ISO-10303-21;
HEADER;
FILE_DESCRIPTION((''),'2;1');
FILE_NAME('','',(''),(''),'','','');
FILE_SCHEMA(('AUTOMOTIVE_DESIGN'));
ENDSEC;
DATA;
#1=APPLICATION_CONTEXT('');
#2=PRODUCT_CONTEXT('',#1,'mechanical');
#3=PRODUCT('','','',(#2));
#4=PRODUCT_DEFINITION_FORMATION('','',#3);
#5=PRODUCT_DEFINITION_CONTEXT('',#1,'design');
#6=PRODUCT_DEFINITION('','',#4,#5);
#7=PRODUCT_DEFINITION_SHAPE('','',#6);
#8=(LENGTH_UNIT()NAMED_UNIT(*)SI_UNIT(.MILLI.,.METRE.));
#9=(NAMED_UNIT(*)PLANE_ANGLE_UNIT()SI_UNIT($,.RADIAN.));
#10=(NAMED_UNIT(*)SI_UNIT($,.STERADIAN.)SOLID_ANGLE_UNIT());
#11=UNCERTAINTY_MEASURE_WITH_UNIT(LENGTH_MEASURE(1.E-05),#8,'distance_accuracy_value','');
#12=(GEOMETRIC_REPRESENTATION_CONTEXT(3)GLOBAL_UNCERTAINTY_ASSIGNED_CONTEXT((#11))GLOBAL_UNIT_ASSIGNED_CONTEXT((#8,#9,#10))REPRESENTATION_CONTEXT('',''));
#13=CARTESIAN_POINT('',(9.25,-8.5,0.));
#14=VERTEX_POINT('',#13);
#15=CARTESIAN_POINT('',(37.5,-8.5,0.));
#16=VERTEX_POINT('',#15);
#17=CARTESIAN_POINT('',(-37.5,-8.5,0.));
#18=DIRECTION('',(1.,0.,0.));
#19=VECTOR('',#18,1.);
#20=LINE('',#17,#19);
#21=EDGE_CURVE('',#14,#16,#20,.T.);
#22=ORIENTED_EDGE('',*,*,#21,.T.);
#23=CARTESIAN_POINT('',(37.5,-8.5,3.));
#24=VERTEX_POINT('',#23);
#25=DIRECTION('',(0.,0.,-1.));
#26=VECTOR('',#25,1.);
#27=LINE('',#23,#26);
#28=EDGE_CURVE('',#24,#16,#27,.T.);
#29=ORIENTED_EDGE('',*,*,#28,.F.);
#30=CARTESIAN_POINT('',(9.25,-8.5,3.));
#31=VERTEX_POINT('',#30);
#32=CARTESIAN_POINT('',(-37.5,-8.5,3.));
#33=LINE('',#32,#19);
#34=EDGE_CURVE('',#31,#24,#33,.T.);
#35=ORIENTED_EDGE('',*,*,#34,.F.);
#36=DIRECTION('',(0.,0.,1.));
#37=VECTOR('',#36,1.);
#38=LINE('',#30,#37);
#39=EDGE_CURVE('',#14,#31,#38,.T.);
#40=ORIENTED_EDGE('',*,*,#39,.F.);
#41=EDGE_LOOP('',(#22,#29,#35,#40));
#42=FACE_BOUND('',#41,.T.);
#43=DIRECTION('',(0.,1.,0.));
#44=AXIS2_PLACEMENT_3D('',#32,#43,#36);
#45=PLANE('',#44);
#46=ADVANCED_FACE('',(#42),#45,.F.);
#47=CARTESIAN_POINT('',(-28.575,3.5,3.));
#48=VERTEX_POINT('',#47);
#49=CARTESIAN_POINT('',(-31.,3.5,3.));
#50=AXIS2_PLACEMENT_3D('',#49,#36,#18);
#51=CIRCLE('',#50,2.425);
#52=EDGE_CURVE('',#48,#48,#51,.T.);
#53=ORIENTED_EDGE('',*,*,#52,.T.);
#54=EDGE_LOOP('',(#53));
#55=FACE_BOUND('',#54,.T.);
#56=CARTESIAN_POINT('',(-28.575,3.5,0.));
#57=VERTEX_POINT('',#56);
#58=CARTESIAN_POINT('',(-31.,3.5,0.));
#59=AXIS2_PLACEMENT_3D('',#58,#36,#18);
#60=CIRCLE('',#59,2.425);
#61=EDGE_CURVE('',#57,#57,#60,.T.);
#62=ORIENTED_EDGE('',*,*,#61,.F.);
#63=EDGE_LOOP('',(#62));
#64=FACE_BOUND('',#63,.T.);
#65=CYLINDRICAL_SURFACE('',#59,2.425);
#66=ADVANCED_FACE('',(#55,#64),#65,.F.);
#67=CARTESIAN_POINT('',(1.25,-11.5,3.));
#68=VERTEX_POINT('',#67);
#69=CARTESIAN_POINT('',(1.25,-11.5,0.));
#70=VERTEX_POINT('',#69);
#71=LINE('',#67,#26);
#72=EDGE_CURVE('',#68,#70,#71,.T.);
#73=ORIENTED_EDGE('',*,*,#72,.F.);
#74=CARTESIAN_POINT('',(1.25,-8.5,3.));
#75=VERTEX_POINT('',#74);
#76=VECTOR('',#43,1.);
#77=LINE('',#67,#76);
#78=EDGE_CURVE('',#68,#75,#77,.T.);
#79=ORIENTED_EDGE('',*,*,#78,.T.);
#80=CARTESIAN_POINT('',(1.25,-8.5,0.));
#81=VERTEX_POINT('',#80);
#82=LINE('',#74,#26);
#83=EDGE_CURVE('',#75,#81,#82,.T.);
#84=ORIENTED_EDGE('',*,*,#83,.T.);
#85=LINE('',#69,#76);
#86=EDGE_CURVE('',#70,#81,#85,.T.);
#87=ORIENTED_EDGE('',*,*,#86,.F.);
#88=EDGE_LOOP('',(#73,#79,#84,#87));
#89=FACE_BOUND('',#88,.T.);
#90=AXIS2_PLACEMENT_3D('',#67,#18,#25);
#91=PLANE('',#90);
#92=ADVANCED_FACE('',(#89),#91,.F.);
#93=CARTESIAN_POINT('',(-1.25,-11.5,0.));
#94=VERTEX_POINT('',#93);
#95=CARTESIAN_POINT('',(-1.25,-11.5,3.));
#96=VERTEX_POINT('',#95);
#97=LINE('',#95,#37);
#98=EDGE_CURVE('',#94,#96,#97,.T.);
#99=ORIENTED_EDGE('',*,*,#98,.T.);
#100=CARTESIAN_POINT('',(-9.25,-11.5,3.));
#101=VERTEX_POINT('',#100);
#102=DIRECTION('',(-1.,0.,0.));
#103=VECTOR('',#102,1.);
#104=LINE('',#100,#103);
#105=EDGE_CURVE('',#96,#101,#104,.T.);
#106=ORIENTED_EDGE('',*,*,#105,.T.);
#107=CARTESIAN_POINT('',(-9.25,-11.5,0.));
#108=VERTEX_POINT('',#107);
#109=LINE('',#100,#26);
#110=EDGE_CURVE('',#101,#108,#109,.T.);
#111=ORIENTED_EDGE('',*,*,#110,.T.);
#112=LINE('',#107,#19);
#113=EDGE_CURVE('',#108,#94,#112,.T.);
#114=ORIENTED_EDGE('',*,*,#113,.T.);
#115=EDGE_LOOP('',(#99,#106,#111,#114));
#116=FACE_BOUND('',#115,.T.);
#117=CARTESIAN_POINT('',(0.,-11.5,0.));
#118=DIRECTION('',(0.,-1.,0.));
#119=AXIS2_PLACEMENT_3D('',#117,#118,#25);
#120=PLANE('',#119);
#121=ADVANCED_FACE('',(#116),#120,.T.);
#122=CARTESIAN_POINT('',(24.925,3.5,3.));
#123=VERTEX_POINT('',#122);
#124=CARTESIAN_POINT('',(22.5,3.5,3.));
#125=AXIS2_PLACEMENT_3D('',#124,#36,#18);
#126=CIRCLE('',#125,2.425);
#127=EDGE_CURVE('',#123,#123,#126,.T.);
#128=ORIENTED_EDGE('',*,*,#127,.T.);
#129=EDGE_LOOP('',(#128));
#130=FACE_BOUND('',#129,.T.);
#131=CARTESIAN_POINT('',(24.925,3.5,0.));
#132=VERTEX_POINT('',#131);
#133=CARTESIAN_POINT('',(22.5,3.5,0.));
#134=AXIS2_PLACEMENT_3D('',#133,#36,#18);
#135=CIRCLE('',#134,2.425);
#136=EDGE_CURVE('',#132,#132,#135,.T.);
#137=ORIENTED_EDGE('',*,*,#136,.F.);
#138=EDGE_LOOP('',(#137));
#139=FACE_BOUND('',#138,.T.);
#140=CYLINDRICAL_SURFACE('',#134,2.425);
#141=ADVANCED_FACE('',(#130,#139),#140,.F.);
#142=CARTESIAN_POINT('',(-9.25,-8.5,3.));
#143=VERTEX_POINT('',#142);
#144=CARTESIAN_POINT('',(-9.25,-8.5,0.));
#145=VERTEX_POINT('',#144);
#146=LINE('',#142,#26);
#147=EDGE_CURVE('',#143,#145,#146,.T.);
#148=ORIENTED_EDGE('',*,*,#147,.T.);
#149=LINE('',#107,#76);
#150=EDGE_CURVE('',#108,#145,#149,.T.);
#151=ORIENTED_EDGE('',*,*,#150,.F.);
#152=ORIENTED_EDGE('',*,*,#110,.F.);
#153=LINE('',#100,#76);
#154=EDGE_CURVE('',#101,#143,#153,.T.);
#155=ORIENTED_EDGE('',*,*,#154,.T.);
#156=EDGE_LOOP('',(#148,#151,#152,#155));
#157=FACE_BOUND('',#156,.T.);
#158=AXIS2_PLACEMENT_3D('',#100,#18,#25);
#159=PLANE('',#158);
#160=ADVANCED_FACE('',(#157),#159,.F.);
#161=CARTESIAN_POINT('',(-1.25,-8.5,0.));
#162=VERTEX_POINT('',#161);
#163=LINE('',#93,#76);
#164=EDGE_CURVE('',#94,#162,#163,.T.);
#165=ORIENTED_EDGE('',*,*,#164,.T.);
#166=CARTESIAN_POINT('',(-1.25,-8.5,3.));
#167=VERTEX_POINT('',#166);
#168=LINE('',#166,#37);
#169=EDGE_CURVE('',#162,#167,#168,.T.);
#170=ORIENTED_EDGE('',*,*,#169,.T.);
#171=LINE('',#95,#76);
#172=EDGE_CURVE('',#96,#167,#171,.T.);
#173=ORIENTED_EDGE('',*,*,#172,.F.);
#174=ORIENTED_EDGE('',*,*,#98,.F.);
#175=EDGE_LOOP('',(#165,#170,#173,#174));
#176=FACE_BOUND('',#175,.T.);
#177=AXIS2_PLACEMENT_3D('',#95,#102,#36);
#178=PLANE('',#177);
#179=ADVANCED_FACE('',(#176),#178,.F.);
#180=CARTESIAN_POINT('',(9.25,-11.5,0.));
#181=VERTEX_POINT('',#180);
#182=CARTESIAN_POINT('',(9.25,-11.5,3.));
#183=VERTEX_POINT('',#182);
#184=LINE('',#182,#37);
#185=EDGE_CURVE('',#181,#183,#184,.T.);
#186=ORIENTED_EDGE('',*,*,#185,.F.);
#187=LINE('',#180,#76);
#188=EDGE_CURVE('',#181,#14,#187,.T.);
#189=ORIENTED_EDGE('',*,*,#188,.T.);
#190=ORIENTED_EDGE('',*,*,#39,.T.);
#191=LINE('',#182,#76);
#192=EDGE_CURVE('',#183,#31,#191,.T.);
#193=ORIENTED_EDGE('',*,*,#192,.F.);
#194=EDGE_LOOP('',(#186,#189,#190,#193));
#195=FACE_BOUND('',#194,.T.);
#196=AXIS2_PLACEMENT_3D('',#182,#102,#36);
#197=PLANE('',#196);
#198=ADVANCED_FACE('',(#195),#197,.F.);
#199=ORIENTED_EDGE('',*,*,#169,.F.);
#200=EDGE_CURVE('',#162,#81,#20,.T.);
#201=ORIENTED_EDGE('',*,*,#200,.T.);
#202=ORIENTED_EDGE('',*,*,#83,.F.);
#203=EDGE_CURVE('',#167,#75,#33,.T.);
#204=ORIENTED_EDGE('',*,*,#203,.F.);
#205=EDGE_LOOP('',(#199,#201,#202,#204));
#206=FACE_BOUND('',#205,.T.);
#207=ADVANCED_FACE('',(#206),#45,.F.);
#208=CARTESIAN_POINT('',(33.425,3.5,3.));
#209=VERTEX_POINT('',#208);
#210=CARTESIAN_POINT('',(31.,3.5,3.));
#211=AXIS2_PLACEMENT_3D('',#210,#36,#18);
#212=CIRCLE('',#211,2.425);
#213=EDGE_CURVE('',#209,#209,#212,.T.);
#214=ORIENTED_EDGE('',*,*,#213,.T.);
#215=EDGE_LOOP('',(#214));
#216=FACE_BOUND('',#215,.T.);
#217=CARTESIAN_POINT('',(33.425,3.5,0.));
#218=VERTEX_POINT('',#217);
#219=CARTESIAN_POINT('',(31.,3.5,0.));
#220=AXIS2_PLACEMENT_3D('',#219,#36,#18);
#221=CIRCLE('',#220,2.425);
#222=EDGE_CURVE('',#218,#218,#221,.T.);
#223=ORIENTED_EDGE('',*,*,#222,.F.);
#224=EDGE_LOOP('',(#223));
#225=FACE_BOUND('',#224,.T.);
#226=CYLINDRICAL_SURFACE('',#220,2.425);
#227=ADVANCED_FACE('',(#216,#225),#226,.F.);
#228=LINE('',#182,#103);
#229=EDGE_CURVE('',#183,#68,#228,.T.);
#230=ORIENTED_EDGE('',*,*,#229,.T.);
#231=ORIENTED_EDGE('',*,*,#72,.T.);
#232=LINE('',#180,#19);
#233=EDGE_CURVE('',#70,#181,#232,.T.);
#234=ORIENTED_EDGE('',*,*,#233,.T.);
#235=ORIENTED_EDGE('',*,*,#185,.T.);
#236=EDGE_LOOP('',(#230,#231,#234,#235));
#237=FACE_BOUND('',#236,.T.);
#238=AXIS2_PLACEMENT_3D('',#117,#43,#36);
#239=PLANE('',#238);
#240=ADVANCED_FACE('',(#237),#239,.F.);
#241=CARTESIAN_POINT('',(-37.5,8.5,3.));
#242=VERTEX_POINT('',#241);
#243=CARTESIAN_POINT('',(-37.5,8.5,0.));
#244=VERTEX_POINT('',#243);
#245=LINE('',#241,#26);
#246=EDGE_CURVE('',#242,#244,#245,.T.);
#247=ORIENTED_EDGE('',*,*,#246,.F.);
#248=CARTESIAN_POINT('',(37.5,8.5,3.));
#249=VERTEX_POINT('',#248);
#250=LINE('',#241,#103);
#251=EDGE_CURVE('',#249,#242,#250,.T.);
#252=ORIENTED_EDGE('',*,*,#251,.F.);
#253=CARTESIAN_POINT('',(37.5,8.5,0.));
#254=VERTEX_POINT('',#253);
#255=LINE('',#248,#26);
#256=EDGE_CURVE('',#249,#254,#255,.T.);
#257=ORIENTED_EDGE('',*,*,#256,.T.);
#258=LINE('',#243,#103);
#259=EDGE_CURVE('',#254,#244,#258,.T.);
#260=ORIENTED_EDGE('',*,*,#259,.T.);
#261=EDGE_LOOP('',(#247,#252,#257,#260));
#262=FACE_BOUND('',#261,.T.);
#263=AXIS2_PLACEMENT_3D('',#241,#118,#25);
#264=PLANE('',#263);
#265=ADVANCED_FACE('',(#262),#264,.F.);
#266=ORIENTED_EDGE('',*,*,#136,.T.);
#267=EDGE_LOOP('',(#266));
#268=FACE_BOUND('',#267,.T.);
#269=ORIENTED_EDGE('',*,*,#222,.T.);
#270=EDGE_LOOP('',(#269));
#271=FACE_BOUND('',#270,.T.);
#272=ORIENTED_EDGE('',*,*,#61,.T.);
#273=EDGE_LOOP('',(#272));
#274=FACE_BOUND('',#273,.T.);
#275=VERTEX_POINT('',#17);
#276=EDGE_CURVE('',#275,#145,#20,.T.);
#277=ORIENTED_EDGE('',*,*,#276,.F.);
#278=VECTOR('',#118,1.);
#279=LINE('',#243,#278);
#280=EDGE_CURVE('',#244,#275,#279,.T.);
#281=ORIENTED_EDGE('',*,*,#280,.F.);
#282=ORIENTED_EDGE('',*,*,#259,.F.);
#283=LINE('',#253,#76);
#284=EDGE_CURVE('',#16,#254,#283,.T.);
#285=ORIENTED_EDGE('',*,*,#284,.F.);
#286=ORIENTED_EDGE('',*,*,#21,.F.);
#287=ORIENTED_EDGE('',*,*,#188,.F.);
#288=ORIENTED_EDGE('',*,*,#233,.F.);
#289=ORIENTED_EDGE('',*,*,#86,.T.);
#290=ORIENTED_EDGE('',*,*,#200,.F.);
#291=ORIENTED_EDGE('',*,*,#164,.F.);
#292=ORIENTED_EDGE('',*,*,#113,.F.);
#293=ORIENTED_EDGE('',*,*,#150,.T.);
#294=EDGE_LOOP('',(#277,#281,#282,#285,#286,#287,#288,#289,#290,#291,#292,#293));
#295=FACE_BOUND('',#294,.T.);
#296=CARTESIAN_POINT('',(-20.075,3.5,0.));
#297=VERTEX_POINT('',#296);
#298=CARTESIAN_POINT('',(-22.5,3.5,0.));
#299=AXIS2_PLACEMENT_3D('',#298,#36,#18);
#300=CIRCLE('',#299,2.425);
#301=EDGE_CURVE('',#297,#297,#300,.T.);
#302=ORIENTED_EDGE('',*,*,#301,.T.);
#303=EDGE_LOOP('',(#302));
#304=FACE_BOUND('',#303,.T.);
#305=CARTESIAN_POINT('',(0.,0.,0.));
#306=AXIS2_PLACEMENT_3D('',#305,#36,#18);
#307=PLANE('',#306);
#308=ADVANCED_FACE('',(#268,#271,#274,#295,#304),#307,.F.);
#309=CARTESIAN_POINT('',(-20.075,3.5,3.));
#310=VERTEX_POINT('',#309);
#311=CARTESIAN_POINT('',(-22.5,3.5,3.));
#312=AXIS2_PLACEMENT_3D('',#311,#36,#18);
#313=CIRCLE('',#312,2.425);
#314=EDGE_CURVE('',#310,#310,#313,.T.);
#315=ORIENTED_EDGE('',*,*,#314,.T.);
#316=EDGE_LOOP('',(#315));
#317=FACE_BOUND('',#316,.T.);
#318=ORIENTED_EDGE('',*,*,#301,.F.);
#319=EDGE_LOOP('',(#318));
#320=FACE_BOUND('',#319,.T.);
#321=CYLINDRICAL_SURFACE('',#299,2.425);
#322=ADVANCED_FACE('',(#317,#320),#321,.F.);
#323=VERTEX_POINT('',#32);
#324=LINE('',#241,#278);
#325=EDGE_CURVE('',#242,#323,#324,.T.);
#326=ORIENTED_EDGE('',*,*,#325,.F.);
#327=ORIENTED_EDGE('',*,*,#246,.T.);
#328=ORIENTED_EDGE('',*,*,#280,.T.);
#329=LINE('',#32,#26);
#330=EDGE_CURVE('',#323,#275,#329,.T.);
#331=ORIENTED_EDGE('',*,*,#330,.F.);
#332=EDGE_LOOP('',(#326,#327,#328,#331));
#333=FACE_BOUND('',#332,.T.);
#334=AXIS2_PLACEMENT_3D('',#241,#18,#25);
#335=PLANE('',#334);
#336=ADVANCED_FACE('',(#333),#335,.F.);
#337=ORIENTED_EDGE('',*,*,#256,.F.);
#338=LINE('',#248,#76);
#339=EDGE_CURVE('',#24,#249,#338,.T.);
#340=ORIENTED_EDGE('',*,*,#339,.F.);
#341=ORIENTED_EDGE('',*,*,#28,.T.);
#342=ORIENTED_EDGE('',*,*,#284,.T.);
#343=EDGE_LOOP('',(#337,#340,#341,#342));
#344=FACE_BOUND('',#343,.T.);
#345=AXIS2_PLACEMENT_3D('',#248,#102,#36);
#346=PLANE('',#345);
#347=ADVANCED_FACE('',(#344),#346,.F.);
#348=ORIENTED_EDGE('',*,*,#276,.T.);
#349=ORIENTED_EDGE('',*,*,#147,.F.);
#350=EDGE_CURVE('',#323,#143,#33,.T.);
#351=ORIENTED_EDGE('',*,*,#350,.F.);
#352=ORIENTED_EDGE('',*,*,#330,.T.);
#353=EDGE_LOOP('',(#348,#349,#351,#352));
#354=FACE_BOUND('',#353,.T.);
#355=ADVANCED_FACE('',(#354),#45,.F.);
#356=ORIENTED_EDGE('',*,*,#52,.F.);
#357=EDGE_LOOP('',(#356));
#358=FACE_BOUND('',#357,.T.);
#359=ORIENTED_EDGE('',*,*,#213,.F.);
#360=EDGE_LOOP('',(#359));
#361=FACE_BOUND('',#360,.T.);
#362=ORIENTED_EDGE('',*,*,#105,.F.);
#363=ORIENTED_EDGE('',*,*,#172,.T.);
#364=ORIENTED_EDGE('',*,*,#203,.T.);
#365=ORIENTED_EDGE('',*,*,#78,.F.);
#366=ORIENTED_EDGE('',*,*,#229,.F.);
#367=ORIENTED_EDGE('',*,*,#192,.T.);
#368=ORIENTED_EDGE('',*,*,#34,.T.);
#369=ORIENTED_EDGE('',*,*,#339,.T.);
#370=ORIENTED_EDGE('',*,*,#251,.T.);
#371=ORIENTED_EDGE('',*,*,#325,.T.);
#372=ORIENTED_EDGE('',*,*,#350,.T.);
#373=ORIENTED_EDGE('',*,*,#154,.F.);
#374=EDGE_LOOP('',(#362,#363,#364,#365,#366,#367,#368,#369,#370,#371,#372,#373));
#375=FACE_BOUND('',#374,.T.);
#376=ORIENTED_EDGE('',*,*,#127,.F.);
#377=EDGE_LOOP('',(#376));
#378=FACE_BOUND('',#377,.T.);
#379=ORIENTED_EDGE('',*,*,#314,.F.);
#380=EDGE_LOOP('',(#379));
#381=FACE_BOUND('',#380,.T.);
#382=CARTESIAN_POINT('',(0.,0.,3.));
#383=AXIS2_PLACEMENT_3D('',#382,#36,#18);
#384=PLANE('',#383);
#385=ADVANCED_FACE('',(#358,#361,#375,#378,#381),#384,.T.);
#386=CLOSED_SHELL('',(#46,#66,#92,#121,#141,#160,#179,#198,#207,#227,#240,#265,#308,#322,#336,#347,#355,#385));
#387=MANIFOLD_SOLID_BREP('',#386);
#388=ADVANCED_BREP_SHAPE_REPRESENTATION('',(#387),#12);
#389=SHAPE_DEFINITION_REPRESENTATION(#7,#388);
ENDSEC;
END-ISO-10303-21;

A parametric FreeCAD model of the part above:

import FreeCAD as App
import Part
import Sketcher
from FreeCAD import Vector


def add_polygon(sketch, points):
    """Adds a closed chain of lines whose ends are joined by coincident constraints."""
    first, n = sketch.GeometryCount, len(points)
    for a, b in zip(points, points[1:] + points[:1]):
        sketch.addGeometry(Part.LineSegment(App.Vector(*a, 0), App.Vector(*b, 0)), False)
    for i in range(n):
        sketch.addConstraint(Sketcher.Constraint("Coincident", first + i, 2, first + (i + 1) % n, 1))

doc = App.newDocument("Part")
body = doc.addObject("PartDesign::Body", "Body")

# Sketch on XY plane
sketch1 = body.newObject("Sketcher::SketchObject", "Sketch")
sketch1.AttachmentSupport = (doc.getObject("XY_Plane"), [""])
sketch1.MapMode = "FlatFace"
add_polygon(sketch1, [(-38, 8), (-38, -8), (38, -8), (38, 8)])  # lines 0-3
sketch1.addConstraint([
    Sketcher.Constraint("Vertical", 0),
    Sketcher.Constraint("Horizontal", 1),
    Sketcher.Constraint("Vertical", 2),
    Sketcher.Constraint("Horizontal", 3),
    Sketcher.Constraint("Symmetric", 0, 2, 2, 2, -1, 1),
    Sketcher.Constraint("DistanceX", 1, 1, 1, 2, 75.0),
    Sketcher.Constraint("DistanceY", 0, 2, 0, 1, 17.0),
])
pad1 = body.newObject("PartDesign::Pad", "Pad")
pad1.Profile = sketch1
pad1.Length = 3

# Sketch on XZ plane
sketch2 = body.newObject("Sketcher::SketchObject", "Sketch001")
sketch2.AttachmentSupport = (doc.getObject("XZ_Plane"), [""])
sketch2.MapMode = "FlatFace"
sketch2.AttachmentOffset = App.Placement(Vector(0, 0, 8.5), App.Rotation())
add_polygon(sketch2, [(-1.2, 0), (-1.2, 3), (-9.2, 3), (-9.2, 0)])  # lines 0-3
add_polygon(sketch2, [(9.2, 0), (9.2, 3), (1.2, 3), (1.2, 0)])  # lines 4-7
sketch2.addConstraint([
    Sketcher.Constraint("Vertical", 0),
    Sketcher.Constraint("Horizontal", 1),
    Sketcher.Constraint("Vertical", 2),
    Sketcher.Constraint("Horizontal", 3),
    Sketcher.Constraint("Vertical", 4),
    Sketcher.Constraint("Horizontal", 5),
    Sketcher.Constraint("Vertical", 6),
    Sketcher.Constraint("Horizontal", 7),
    Sketcher.Constraint("Symmetric", 3, 2, 6, 2, -1, 1),
    Sketcher.Constraint("Symmetric", 1, 2, 4, 2, -2),
    Sketcher.Constraint("PointOnObject", 2, 2, -1),
    Sketcher.Constraint("DistanceX", 1, 2, 1, 1, 8.0),
    Sketcher.Constraint("DistanceY", 0, 1, 0, 2, 3.0),
    Sketcher.Constraint("DistanceX", 0, 2, 4, 2, 10.5),
])
pad2 = body.newObject("PartDesign::Pad", "Pad001")
pad2.Profile = sketch2
pad2.Length = 3

# Sketch on XY plane
sketch3 = body.newObject("Sketcher::SketchObject", "Sketch002")
sketch3.AttachmentSupport = (doc.getObject("XY_Plane"), [""])
sketch3.MapMode = "FlatFace"
sketch3.AttachmentOffset = App.Placement(Vector(0, 0, 3), App.Rotation())
sketch3.addGeometry([
    Part.Circle(Vector(-31, 3.5, 0), Vector(0, 0, 1), 2.4),
    Part.Circle(Vector(-22.5, 3.5, 0), Vector(0, 0, 1), 2.4),
    Part.Circle(Vector(22.5, 3.5, 0), Vector(0, 0, 1), 2.4),
    Part.Circle(Vector(31, 3.5, 0), Vector(0, 0, 1), 2.4),
], False)
sketch3.addConstraint([
    Sketcher.Constraint("Equal", 0, 1),
    Sketcher.Constraint("Equal", 1, 2),
    Sketcher.Constraint("Equal", 2, 3),
    Sketcher.Constraint("Symmetric", 1, 3, 2, 3, -2),
    Sketcher.Constraint("Symmetric", 0, 3, 3, 3, -2),
    Sketcher.Constraint("Horizontal", 0, 3, 1, 3),
    Sketcher.Constraint("Diameter", 0, 4.85),
    Sketcher.Constraint("DistanceX", 0, 3, -1, 1, 31.0),
    Sketcher.Constraint("DistanceX", 1, 3, 2, 3, 45.0),
    Sketcher.Constraint("DistanceY", -1, 1, 0, 3, 3.5),
])
pocket1 = body.newObject("PartDesign::Pocket", "Pocket")
pocket1.Profile = sketch3
pocket1.Length = 3

doc.recompute()
